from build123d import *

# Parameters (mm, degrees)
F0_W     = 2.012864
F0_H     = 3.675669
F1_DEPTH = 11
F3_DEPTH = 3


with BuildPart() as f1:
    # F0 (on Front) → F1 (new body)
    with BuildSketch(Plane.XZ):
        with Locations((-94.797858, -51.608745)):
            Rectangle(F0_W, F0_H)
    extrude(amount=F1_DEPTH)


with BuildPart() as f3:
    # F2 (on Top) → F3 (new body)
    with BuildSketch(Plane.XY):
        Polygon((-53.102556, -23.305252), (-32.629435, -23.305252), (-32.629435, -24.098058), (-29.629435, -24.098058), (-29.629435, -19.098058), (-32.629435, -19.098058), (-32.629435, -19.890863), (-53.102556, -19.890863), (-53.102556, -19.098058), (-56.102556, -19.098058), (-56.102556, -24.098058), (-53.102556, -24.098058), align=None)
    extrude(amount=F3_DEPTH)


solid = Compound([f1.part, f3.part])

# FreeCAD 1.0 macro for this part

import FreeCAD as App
import Part
import Sketcher
Q = App.Units.Quantity

doc = App.newDocument("Part")
params = doc.addObject("Spreadsheet::Sheet", "Params")
for row, (alias, value) in enumerate([
    ("pad1_length", "11 mm"),
    ("sketch2_width", "3 mm"),
    ("sketch2_height", "5 mm"),
    ("pad2_length", "3 mm"),
], start=1):
    params.set(f"A{row}", alias)
    params.set(f"B{row}", "=" + value)
    params.setAlias(f"B{row}", alias)

body = doc.addObject("PartDesign::Body", "Body")

sketch1 = body.newObject("Sketcher::SketchObject", "Sketch")
sketch1.AttachmentSupport = (doc.getObject("XZ_Plane"), [""])
sketch1.MapMode = "FlatFace"
sketch1.addGeometry(Part.LineSegment(App.Vector(-95.8, -49.8, 0), App.Vector(-95.8, -53.4, 0)), False)
sketch1.addGeometry(Part.LineSegment(App.Vector(-95.8, -53.4, 0), App.Vector(-93.8, -53.4, 0)), False)
sketch1.addGeometry(Part.LineSegment(App.Vector(-93.8, -53.4, 0), App.Vector(-93.8, -49.8, 0)), False)
sketch1.addGeometry(Part.LineSegment(App.Vector(-93.8, -49.8, 0), App.Vector(-95.8, -49.8, 0)), False)
sketch1.addConstraint(Sketcher.Constraint("Coincident", 0, 2, 1, 1))
sketch1.addConstraint(Sketcher.Constraint("Coincident", 1, 2, 2, 1))
sketch1.addConstraint(Sketcher.Constraint("Coincident", 2, 2, 3, 1))
sketch1.addConstraint(Sketcher.Constraint("Coincident", 3, 2, 0, 1))
sketch1.addConstraint(Sketcher.Constraint("Vertical", 0))
sketch1.addConstraint(Sketcher.Constraint("Horizontal", 1))
sketch1.addConstraint(Sketcher.Constraint("Vertical", 2))
sketch1.addConstraint(Sketcher.Constraint("Horizontal", 3))
sketch1.addConstraint(Sketcher.Constraint("DistanceY", 0, 2, 0, 1, Q("3.675669 mm")))
sketch1.addConstraint(Sketcher.Constraint("DistanceX", 1, 1, 1, 2, Q("2.012864 mm")))
sketch1.addConstraint(Sketcher.Constraint("DistanceX", 0, 2, -1, 1, Q("95.80429 mm")))
sketch1.addConstraint(Sketcher.Constraint("DistanceY", 0, 2, -1, 1, Q("53.446579 mm")))
pad1 = body.newObject("PartDesign::Pad", "Pad")
pad1.Profile = sketch1
pad1.setExpression("Length", "Params.pad1_length")
body2 = doc.addObject("PartDesign::Body", "Body001")

sketch2 = body2.newObject("Sketcher::SketchObject", "Sketch001")
sketch2.AttachmentSupport = (doc.getObject("XY_Plane001"), [""])
sketch2.MapMode = "FlatFace"
sketch2.addGeometry(Part.LineSegment(App.Vector(-53.1, -23.3, 0), App.Vector(-32.6, -23.3, 0)), False)
sketch2.addGeometry(Part.LineSegment(App.Vector(-32.6, -23.3, 0), App.Vector(-32.6, -24.1, 0)), False)
sketch2.addGeometry(Part.LineSegment(App.Vector(-32.6, -24.1, 0), App.Vector(-29.6, -24.1, 0)), False)
sketch2.addGeometry(Part.LineSegment(App.Vector(-29.6, -24.1, 0), App.Vector(-29.6, -19.1, 0)), False)
sketch2.addGeometry(Part.LineSegment(App.Vector(-29.6, -19.1, 0), App.Vector(-32.6, -19.1, 0)), False)
sketch2.addGeometry(Part.LineSegment(App.Vector(-32.6, -19.1, 0), App.Vector(-32.6, -19.9, 0)), False)
sketch2.addGeometry(Part.LineSegment(App.Vector(-32.6, -19.9, 0), App.Vector(-53.1, -19.9, 0)), False)
sketch2.addGeometry(Part.LineSegment(App.Vector(-53.1, -19.9, 0), App.Vector(-53.1, -19.1, 0)), False)
sketch2.addGeometry(Part.LineSegment(App.Vector(-53.1, -19.1, 0), App.Vector(-56.1, -19.1, 0)), False)
sketch2.addGeometry(Part.LineSegment(App.Vector(-56.1, -19.1, 0), App.Vector(-56.1, -24.1, 0)), False)
sketch2.addGeometry(Part.LineSegment(App.Vector(-56.1, -24.1, 0), App.Vector(-53.1, -24.1, 0)), False)
sketch2.addGeometry(Part.LineSegment(App.Vector(-53.1, -24.1, 0), App.Vector(-53.1, -23.3, 0)), False)
sketch2.addConstraint(Sketcher.Constraint("Coincident", 0, 2, 1, 1))
sketch2.addConstraint(Sketcher.Constraint("Coincident", 1, 2, 2, 1))
sketch2.addConstraint(Sketcher.Constraint("Coincident", 2, 2, 3, 1))
sketch2.addConstraint(Sketcher.Constraint("Coincident", 3, 2, 4, 1))
sketch2.addConstraint(Sketcher.Constraint("Coincident", 4, 2, 5, 1))
sketch2.addConstraint(Sketcher.Constraint("Coincident", 5, 2, 6, 1))
sketch2.addConstraint(Sketcher.Constraint("Coincident", 6, 2, 7, 1))
sketch2.addConstraint(Sketcher.Constraint("Coincident", 7, 2, 8, 1))
sketch2.addConstraint(Sketcher.Constraint("Coincident", 8, 2, 9, 1))
sketch2.addConstraint(Sketcher.Constraint("Coincident", 9, 2, 10, 1))
sketch2.addConstraint(Sketcher.Constraint("Coincident", 10, 2, 11, 1))
sketch2.addConstraint(Sketcher.Constraint("Coincident", 11, 2, 0, 1))
sketch2.addConstraint(Sketcher.Constraint("Horizontal", 0))
sketch2.addConstraint(Sketcher.Constraint("Vertical", 1))
sketch2.addConstraint(Sketcher.Constraint("Horizontal", 2))
sketch2.addConstraint(Sketcher.Constraint("Vertical", 3))
sketch2.addConstraint(Sketcher.Constraint("Horizontal", 4))
sketch2.addConstraint(Sketcher.Constraint("Vertical", 5))
sketch2.addConstraint(Sketcher.Constraint("Horizontal", 6))
sketch2.addConstraint(Sketcher.Constraint("Vertical", 7))
sketch2.addConstraint(Sketcher.Constraint("Horizontal", 8))
sketch2.addConstraint(Sketcher.Constraint("Vertical", 9))
sketch2.addConstraint(Sketcher.Constraint("Horizontal", 10))
sketch2.addConstraint(Sketcher.Constraint("Vertical", 11))
sketch2.addConstraint(Sketcher.Constraint("Horizontal", 4, 2, 7, 2))
sketch2.addConstraint(Sketcher.Constraint("Horizontal", 2, 2, 9, 2))
sketch2.addConstraint(Sketcher.Constraint("Vertical", 1, 2, 4, 2))
sketch2.addConstraint(Sketcher.Constraint("Vertical", 7, 2, 10, 2))
sketch2.addConstraint(Sketcher.Constraint("Equal", 4, 8))
sketch2.addConstraint(Sketcher.Constraint("Equal", 1, 5))
sketch2.addConstraint(Sketcher.Constraint("DistanceX", 2, 1, 2, 2, Q("3 mm")))
sketch2.addConstraint(Sketcher.Constraint("DistanceY", 3, 1, 3, 2, Q("5 mm")))
sketch2.addConstraint(Sketcher.Constraint("DistanceX", 0, 1, 0, 2, Q("20.473121 mm")))
sketch2.addConstraint(Sketcher.Constraint("DistanceY", 1, 2, 1, 1, Q("0.792806 mm")))
sketch2.addConstraint(Sketcher.Constraint("DistanceY", 0, 2, -1, 1, Q("23.305252 mm")))
sketch2.addConstraint(Sketcher.Constraint("DistanceX", 0, 2, -1, 1, Q("32.629435 mm")))
sketch2.setExpression("Constraints[30]", "Params.sketch2_width")
sketch2.setExpression("Constraints[31]", "Params.sketch2_height")
pad2 = body2.newObject("PartDesign::Pad", "Pad001")
pad2.Profile = sketch2
pad2.setExpression("Length", "Params.pad2_length")

doc.recompute()
